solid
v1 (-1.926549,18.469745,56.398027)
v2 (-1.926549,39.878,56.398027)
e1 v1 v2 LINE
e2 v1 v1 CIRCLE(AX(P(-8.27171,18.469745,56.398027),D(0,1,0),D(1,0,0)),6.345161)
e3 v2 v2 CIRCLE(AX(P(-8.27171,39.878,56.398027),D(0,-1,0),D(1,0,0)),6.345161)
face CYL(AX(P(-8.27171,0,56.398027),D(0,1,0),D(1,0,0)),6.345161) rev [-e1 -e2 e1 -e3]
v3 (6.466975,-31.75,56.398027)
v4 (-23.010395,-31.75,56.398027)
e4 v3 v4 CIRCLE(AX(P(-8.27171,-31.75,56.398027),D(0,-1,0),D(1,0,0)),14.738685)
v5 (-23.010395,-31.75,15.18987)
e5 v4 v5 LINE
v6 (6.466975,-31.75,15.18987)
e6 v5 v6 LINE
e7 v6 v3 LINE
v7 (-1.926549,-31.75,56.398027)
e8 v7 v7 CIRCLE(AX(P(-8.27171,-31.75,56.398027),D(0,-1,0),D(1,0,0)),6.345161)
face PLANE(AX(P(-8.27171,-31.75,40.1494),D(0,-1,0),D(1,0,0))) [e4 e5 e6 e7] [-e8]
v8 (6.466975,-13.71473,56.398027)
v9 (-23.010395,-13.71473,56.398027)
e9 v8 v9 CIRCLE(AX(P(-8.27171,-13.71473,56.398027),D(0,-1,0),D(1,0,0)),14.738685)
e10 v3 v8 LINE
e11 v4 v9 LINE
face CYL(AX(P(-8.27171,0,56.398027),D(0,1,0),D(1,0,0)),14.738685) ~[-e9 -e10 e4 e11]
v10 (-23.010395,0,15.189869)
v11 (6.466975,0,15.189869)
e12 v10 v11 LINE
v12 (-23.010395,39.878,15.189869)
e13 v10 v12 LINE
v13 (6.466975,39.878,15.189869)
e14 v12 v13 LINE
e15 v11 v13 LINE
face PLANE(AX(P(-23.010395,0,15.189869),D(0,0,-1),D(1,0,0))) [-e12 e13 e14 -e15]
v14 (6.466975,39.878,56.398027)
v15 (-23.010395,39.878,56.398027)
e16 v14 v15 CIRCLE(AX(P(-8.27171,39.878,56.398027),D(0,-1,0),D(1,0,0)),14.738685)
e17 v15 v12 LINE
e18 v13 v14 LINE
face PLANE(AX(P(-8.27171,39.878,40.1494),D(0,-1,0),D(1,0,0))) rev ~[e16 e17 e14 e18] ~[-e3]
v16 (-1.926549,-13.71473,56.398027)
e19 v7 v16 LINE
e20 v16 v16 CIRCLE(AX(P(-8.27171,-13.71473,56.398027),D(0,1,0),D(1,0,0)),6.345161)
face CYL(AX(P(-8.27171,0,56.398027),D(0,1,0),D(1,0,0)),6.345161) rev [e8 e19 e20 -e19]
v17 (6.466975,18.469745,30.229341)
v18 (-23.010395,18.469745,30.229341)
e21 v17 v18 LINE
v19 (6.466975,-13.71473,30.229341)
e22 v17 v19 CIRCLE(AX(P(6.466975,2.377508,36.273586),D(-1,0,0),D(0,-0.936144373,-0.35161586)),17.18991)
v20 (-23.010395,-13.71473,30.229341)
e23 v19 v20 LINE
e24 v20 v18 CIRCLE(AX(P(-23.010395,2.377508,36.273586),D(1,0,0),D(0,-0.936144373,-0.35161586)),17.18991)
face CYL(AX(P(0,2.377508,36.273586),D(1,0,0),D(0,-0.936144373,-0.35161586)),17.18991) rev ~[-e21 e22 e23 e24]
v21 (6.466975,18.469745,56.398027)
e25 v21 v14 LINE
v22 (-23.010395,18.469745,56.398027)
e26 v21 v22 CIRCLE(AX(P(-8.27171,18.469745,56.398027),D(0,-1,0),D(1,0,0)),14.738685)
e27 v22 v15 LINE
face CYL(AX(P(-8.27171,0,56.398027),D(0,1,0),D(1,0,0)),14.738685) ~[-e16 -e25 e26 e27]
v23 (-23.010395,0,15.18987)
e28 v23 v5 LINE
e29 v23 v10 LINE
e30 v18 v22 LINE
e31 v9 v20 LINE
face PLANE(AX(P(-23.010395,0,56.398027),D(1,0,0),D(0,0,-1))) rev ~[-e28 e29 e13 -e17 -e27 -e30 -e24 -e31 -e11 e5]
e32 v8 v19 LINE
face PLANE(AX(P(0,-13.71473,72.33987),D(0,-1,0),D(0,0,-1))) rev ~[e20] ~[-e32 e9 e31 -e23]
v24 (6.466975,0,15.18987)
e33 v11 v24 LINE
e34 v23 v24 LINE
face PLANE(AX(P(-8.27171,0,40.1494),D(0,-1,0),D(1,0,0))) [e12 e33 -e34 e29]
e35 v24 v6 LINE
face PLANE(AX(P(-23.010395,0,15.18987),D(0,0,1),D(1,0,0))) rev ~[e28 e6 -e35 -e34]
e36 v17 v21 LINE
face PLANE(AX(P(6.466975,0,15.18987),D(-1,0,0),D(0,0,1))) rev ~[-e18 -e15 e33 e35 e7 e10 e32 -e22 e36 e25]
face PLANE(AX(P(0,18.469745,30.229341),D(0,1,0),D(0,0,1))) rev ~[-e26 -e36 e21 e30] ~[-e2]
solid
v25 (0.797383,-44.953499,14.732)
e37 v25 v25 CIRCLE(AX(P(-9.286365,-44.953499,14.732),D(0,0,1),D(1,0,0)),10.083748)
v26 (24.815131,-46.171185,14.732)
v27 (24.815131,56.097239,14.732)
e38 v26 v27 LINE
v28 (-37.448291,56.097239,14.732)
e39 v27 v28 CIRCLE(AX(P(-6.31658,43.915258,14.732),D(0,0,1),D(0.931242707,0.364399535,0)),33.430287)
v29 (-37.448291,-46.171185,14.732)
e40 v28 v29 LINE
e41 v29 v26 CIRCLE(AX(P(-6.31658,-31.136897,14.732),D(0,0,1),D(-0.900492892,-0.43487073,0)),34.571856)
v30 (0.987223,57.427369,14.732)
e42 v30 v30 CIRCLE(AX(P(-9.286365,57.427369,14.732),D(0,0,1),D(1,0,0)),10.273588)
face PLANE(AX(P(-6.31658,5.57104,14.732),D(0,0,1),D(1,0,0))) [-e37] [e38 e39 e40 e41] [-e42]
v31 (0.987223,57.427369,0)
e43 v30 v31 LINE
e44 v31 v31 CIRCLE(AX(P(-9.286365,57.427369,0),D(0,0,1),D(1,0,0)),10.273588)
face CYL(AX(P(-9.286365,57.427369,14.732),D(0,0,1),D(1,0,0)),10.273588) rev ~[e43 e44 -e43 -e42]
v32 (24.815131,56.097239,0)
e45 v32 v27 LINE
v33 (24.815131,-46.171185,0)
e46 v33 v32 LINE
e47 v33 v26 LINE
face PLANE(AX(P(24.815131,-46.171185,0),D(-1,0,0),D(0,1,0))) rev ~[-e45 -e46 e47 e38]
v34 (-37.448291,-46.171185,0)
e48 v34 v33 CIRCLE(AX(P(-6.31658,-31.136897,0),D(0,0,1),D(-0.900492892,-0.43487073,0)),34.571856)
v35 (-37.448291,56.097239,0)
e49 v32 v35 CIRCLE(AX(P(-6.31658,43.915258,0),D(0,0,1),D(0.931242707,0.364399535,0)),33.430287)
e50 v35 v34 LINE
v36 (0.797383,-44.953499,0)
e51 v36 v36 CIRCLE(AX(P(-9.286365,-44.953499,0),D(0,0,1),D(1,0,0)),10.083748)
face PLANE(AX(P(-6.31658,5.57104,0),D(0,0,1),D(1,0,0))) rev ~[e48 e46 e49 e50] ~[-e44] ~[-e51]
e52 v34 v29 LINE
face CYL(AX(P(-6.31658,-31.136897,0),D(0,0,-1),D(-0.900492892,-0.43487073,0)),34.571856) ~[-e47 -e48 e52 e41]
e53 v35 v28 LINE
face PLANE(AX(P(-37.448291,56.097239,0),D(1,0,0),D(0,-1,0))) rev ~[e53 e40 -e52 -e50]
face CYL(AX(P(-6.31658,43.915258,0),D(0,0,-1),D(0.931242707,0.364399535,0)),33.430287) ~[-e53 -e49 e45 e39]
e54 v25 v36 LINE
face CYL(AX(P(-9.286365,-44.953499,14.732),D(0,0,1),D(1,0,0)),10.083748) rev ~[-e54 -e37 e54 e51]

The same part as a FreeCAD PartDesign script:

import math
import FreeCAD as App
import Part
import Sketcher
from FreeCAD import Vector

doc = App.newDocument("Part")
params = doc.addObject("Spreadsheet::Sheet", "Params")
for row, (alias, value) in enumerate([
    ("pad1_length", "0.58 in"),
    ("pad2_length", "1.57 in"),
    ("pad3_length", "1.25 in"),
    ("pocket4_length", "1.86 in"),
], start=1):
    params.set(f"A{row}", alias)
    params.set(f"B{row}", "=" + value)
    params.setAlias(f"B{row}", alias)

body = doc.addObject("PartDesign::Body", "Body")

# Sketch on XY plane
sketch1 = body.newObject("Sketcher::SketchObject", "Sketch")
sketch1.AttachmentSupport = (doc.getObject("XY_Plane"), [""])
sketch1.MapMode = "FlatFace"
sketch1.addGeometry(Part.ArcOfCircle(Part.Circle(Vector(-6, 44, 0), Vector(0, 0, 1), 33), math.radians(21), math.radians(159)), False)
sketch1.addGeometry(Part.LineSegment(Vector(-37, 56, 0), Vector(-37, -46, 0)), False)
sketch1.addGeometry(Part.ArcOfCircle(Part.Circle(Vector(-6, -31, 0), Vector(0, 0, 1), 35), math.radians(-154), math.radians(-26)), False)
sketch1.addGeometry(Part.LineSegment(Vector(25, -46, 0), Vector(25, 56, 0)), False)
sketch1.addConstraint(Sketcher.Constraint("Coincident", 0, 2, 1, 1))
sketch1.addConstraint(Sketcher.Constraint("Coincident", 1, 2, 2, 1))
sketch1.addConstraint(Sketcher.Constraint("Coincident", 2, 2, 3, 1))
sketch1.addConstraint(Sketcher.Constraint("Coincident", 3, 2, 0, 1))
sketch1.addConstraint(Sketcher.Constraint("Vertical", 1))
sketch1.addConstraint(Sketcher.Constraint("Vertical", 3))
sketch1.addConstraint(Sketcher.Constraint("Horizontal", 1, 2, 2, 2))
sketch1.addConstraint(Sketcher.Constraint("Horizontal", 0, 2, 3, 2))
sketch1.addConstraint(Sketcher.Constraint("Radius", 0, 33.430287))
sketch1.addConstraint(Sketcher.Constraint("Radius", 2, 34.571856))
sketch1.addConstraint(Sketcher.Constraint("DistanceY", 1, 2, 1, 1, 102.268424))
sketch1.addConstraint(Sketcher.Constraint("DistanceX", 0, 3, -1, 1, 6.31658))
sketch1.addConstraint(Sketcher.Constraint("DistanceX", 0, 2, -1, 1, 37.448291))
sketch1.addConstraint(Sketcher.Constraint("DistanceY", -1, 1, 0, 2, 56.097239))
pad1 = body.newObject("PartDesign::Pad", "Pad")
pad1.Profile = sketch1
pad1.setExpression("Length", "Params.pad1_length")

# Sketch on XY plane
sketch2 = body.newObject("Sketcher::SketchObject", "Sketch001")
sketch2.AttachmentSupport = (doc.getObject("XY_Plane"), [""])
sketch2.MapMode = "FlatFace"
sketch2.AttachmentOffset = App.Placement(Vector(0, 0, 0.58 * 25.4), App.Rotation())
sketch2.addGeometry(Part.Circle(Vector(-9, -45, 0), Vector(0, 0, 1), 10), False)
sketch2.addConstraint(Sketcher.Constraint("Diameter", 0, 20.167496))
sketch2.addConstraint(Sketcher.Constraint("DistanceY", 0, 3, -1, 1, 44.953499))
sketch2.addConstraint(Sketcher.Constraint("DistanceX", 0, 3, -1, 1, 9.286365))
pocket1 = body.newObject("PartDesign::Pocket", "Pocket")
pocket1.Profile = sketch2
pocket1.Type = "ThroughAll"

# Sketch on XY plane
sketch3 = body.newObject("Sketcher::SketchObject", "Sketch002")
sketch3.AttachmentSupport = (doc.getObject("XY_Plane"), [""])
sketch3.MapMode = "FlatFace"
sketch3.AttachmentOffset = App.Placement(Vector(0, 0, 0.58 * 25.4), App.Rotation())
sketch3.addGeometry(Part.Circle(Vector(-9, 57, 0), Vector(0, 0, 1), 10), False)
sketch3.addConstraint(Sketcher.Constraint("Diameter", 0, 20.547176))
sketch3.addConstraint(Sketcher.Constraint("DistanceY", -1, 1, 0, 3, 57.427369))
sketch3.addConstraint(Sketcher.Constraint("DistanceX", 0, 3, -1, 1, 9.286365))
pocket2 = body.newObject("PartDesign::Pocket", "Pocket001")
pocket2.Profile = sketch3
pocket2.Type = "ThroughAll"
body2 = doc.addObject("PartDesign::Body", "Body001")

# Sketch on XZ plane
sketch4 = body2.newObject("Sketcher::SketchObject", "Sketch003")
sketch4.AttachmentSupport = (doc.getObject("XZ_Plane001"), [""])
sketch4.MapMode = "FlatFace"
sketch4.addGeometry(Part.LineSegment(Vector(-23, 56, 0), Vector(-23, 15, 0)), False)
sketch4.addGeometry(Part.LineSegment(Vector(-23, 15, 0), Vector(6, 15, 0)), False)
sketch4.addGeometry(Part.LineSegment(Vector(6, 15, 0), Vector(6, 56, 0)), False)
sketch4.addGeometry(Part.ArcOfCircle(Part.Circle(Vector(-8, 56, 0), Vector(0, 0, 1), 15), math.radians(0), math.radians(180)), False)
sketch4.addGeometry(Part.Circle(Vector(-8, 56, 0), Vector(0, 0, 1), 6), False)
sketch4.addConstraint(Sketcher.Constraint("Coincident", 0, 2, 1, 1))
sketch4.addConstraint(Sketcher.Constraint("Coincident", 1, 2, 2, 1))
sketch4.addConstraint(Sketcher.Constraint("Tangent", 2, 2, 3, 1))
sketch4.addConstraint(Sketcher.Constraint("Tangent", 3, 2, 0, 1))
sketch4.addConstraint(Sketcher.Constraint("Vertical", 0))
sketch4.addConstraint(Sketcher.Constraint("Horizontal", 1))
sketch4.addConstraint(Sketcher.Constraint("Vertical", 2))
sketch4.addConstraint(Sketcher.Constraint("Coincident", 4, 3, 3, 3))
sketch4.addConstraint(Sketcher.Constraint("Diameter", 4, 12.690322))
sketch4.addConstraint(Sketcher.Constraint("Radius", 3, 14.738685))
sketch4.addConstraint(Sketcher.Constraint("DistanceY", 0, 2, 0, 1, 41.208158))
sketch4.addConstraint(Sketcher.Constraint("DistanceX", 3, 3, -1, 1, 8.27171))
sketch4.addConstraint(Sketcher.Constraint("DistanceY", -1, 1, 0, 2, 15.189869))
pad2 = body2.newObject("PartDesign::Pad", "Pad001")
pad2.Profile = sketch4
pad2.setExpression("Length", "Params.pad2_length")
pad2.Reversed = True

# Sketch on XZ plane
sketch5 = body2.newObject("Sketcher::SketchObject", "Sketch004")
sketch5.AttachmentSupport = (doc.getObject("XZ_Plane001"), [""])
sketch5.MapMode = "FlatFace"
sketch5.addGeometry(Part.LineSegment(Vector(-23, 56, 0), Vector(-23, 15, 0)), False)
sketch5.addGeometry(Part.LineSegment(Vector(-23, 15, 0), Vector(6, 15, 0)), False)
sketch5.addGeometry(Part.LineSegment(Vector(6, 15, 0), Vector(6, 56, 0)), False)
sketch5.addGeometry(Part.ArcOfCircle(Part.Circle(Vector(-8, 56, 0), Vector(0, 0, 1), 15), math.radians(0), math.radians(180)), False)
sketch5.addGeometry(Part.Circle(Vector(-8, 56, 0), Vector(0, 0, 1), 6), False)
sketch5.addConstraint(Sketcher.Constraint("Coincident", 0, 2, 1, 1))
sketch5.addConstraint(Sketcher.Constraint("Coincident", 1, 2, 2, 1))
sketch5.addConstraint(Sketcher.Constraint("Tangent", 2, 2, 3, 1))
sketch5.addConstraint(Sketcher.Constraint("Tangent", 3, 2, 0, 1))
sketch5.addConstraint(Sketcher.Constraint("Vertical", 0))
sketch5.addConstraint(Sketcher.Constraint("Horizontal", 1))
sketch5.addConstraint(Sketcher.Constraint("Vertical", 2))
sketch5.addConstraint(Sketcher.Constraint("Coincident", 4, 3, 3, 3))
sketch5.addConstraint(Sketcher.Constraint("Diameter", 4, 12.690322))
sketch5.addConstraint(Sketcher.Constraint("Radius", 3, 14.738685))
sketch5.addConstraint(Sketcher.Constraint("DistanceY", 0, 2, 0, 1, 41.208157))
sketch5.addConstraint(Sketcher.Constraint("DistanceX", 3, 3, -1, 1, 8.27171))
sketch5.addConstraint(Sketcher.Constraint("DistanceY", -1, 1, 0, 2, 15.18987))
pad3 = body2.newObject("PartDesign::Pad", "Pad002")
pad3.Profile = sketch5
pad3.setExpression("Length", "Params.pad3_length")

# Sketch on YZ plane
sketch6 = body2.newObject("Sketcher::SketchObject", "Sketch005")
sketch6.AttachmentSupport = (doc.getObject("YZ_Plane001"), [""])
sketch6.MapMode = "FlatFace"
sketch6.addGeometry(Part.LineSegment(Vector(18, 72, 0), Vector(-14, 72, 0)), False)
sketch6.addGeometry(Part.LineSegment(Vector(-14, 72, 0), Vector(-14, 30, 0)), False)
sketch6.addGeometry(Part.ArcOfCircle(Part.Circle(Vector(2, 36, 0), Vector(0, 0, 1), 17), math.radians(-159), math.radians(-21)), False)
sketch6.addGeometry(Part.LineSegment(Vector(18, 30, 0), Vector(18, 72, 0)), False)
sketch6.addConstraint(Sketcher.Constraint("Coincident", 0, 2, 1, 1))
sketch6.addConstraint(Sketcher.Constraint("Coincident", 1, 2, 2, 1))
sketch6.addConstraint(Sketcher.Constraint("Coincident", 2, 2, 3, 1))
sketch6.addConstraint(Sketcher.Constraint("Coincident", 3, 2, 0, 1))
sketch6.addConstraint(Sketcher.Constraint("Horizontal", 0))
sketch6.addConstraint(Sketcher.Constraint("Vertical", 1))
sketch6.addConstraint(Sketcher.Constraint("Vertical", 3))
sketch6.addConstraint(Sketcher.Constraint("Horizontal", 1, 2, 2, 2))
sketch6.addConstraint(Sketcher.Constraint("Radius", 2, 17.18991))
sketch6.addConstraint(Sketcher.Constraint("DistanceY", 1, 2, 1, 1, 42.110529))
sketch6.addConstraint(Sketcher.Constraint("DistanceX", 0, 2, 0, 1, 32.184475))
sketch6.addConstraint(Sketcher.Constraint("DistanceX", 0, 2, -1, 1, 13.71473))
sketch6.addConstraint(Sketcher.Constraint("DistanceY", -1, 1, 0, 2, 72.33987))
pocket3 = body2.newObject("PartDesign::Pocket", "Pocket002")
pocket3.Profile = sketch6
pocket3.Type = "ThroughAll"

# Sketch on YZ plane
sketch7 = body2.newObject("Sketcher::SketchObject", "Sketch006")
sketch7.AttachmentSupport = (doc.getObject("YZ_Plane001"), [""])
sketch7.MapMode = "FlatFace"
sketch7.addGeometry(Part.LineSegment(Vector(18, 72, 0), Vector(-14, 72, 0)), False)
sketch7.addGeometry(Part.LineSegment(Vector(-14, 72, 0), Vector(-14, 30, 0)), False)
sketch7.addGeometry(Part.ArcOfCircle(Part.Circle(Vector(2, 36, 0), Vector(0, 0, 1), 17), math.radians(-159), math.radians(-21)), False)
sketch7.addGeometry(Part.LineSegment(Vector(18, 30, 0), Vector(18, 72, 0)), False)
sketch7.addConstraint(Sketcher.Constraint("Coincident", 0, 2, 1, 1))
sketch7.addConstraint(Sketcher.Constraint("Coincident", 1, 2, 2, 1))
sketch7.addConstraint(Sketcher.Constraint("Coincident", 2, 2, 3, 1))
sketch7.addConstraint(Sketcher.Constraint("Coincident", 3, 2, 0, 1))
sketch7.addConstraint(Sketcher.Constraint("Horizontal", 0))
sketch7.addConstraint(Sketcher.Constraint("Vertical", 1))
sketch7.addConstraint(Sketcher.Constraint("Vertical", 3))
sketch7.addConstraint(Sketcher.Constraint("Horizontal", 1, 2, 2, 2))
sketch7.addConstraint(Sketcher.Constraint("Radius", 2, 17.18991))
sketch7.addConstraint(Sketcher.Constraint("DistanceY", 1, 2, 1, 1, 42.110529))
sketch7.addConstraint(Sketcher.Constraint("DistanceX", 0, 2, 0, 1, 32.184475))
sketch7.addConstraint(Sketcher.Constraint("DistanceX", 0, 2, -1, 1, 13.71473))
sketch7.addConstraint(Sketcher.Constraint("DistanceY", -1, 1, 0, 2, 72.33987))
pocket4 = body2.newObject("PartDesign::Pocket", "Pocket003")
pocket4.Profile = sketch7
pocket4.setExpression("Length", "Params.pocket4_length")
pocket4.Reversed = True

doc.recompute()
